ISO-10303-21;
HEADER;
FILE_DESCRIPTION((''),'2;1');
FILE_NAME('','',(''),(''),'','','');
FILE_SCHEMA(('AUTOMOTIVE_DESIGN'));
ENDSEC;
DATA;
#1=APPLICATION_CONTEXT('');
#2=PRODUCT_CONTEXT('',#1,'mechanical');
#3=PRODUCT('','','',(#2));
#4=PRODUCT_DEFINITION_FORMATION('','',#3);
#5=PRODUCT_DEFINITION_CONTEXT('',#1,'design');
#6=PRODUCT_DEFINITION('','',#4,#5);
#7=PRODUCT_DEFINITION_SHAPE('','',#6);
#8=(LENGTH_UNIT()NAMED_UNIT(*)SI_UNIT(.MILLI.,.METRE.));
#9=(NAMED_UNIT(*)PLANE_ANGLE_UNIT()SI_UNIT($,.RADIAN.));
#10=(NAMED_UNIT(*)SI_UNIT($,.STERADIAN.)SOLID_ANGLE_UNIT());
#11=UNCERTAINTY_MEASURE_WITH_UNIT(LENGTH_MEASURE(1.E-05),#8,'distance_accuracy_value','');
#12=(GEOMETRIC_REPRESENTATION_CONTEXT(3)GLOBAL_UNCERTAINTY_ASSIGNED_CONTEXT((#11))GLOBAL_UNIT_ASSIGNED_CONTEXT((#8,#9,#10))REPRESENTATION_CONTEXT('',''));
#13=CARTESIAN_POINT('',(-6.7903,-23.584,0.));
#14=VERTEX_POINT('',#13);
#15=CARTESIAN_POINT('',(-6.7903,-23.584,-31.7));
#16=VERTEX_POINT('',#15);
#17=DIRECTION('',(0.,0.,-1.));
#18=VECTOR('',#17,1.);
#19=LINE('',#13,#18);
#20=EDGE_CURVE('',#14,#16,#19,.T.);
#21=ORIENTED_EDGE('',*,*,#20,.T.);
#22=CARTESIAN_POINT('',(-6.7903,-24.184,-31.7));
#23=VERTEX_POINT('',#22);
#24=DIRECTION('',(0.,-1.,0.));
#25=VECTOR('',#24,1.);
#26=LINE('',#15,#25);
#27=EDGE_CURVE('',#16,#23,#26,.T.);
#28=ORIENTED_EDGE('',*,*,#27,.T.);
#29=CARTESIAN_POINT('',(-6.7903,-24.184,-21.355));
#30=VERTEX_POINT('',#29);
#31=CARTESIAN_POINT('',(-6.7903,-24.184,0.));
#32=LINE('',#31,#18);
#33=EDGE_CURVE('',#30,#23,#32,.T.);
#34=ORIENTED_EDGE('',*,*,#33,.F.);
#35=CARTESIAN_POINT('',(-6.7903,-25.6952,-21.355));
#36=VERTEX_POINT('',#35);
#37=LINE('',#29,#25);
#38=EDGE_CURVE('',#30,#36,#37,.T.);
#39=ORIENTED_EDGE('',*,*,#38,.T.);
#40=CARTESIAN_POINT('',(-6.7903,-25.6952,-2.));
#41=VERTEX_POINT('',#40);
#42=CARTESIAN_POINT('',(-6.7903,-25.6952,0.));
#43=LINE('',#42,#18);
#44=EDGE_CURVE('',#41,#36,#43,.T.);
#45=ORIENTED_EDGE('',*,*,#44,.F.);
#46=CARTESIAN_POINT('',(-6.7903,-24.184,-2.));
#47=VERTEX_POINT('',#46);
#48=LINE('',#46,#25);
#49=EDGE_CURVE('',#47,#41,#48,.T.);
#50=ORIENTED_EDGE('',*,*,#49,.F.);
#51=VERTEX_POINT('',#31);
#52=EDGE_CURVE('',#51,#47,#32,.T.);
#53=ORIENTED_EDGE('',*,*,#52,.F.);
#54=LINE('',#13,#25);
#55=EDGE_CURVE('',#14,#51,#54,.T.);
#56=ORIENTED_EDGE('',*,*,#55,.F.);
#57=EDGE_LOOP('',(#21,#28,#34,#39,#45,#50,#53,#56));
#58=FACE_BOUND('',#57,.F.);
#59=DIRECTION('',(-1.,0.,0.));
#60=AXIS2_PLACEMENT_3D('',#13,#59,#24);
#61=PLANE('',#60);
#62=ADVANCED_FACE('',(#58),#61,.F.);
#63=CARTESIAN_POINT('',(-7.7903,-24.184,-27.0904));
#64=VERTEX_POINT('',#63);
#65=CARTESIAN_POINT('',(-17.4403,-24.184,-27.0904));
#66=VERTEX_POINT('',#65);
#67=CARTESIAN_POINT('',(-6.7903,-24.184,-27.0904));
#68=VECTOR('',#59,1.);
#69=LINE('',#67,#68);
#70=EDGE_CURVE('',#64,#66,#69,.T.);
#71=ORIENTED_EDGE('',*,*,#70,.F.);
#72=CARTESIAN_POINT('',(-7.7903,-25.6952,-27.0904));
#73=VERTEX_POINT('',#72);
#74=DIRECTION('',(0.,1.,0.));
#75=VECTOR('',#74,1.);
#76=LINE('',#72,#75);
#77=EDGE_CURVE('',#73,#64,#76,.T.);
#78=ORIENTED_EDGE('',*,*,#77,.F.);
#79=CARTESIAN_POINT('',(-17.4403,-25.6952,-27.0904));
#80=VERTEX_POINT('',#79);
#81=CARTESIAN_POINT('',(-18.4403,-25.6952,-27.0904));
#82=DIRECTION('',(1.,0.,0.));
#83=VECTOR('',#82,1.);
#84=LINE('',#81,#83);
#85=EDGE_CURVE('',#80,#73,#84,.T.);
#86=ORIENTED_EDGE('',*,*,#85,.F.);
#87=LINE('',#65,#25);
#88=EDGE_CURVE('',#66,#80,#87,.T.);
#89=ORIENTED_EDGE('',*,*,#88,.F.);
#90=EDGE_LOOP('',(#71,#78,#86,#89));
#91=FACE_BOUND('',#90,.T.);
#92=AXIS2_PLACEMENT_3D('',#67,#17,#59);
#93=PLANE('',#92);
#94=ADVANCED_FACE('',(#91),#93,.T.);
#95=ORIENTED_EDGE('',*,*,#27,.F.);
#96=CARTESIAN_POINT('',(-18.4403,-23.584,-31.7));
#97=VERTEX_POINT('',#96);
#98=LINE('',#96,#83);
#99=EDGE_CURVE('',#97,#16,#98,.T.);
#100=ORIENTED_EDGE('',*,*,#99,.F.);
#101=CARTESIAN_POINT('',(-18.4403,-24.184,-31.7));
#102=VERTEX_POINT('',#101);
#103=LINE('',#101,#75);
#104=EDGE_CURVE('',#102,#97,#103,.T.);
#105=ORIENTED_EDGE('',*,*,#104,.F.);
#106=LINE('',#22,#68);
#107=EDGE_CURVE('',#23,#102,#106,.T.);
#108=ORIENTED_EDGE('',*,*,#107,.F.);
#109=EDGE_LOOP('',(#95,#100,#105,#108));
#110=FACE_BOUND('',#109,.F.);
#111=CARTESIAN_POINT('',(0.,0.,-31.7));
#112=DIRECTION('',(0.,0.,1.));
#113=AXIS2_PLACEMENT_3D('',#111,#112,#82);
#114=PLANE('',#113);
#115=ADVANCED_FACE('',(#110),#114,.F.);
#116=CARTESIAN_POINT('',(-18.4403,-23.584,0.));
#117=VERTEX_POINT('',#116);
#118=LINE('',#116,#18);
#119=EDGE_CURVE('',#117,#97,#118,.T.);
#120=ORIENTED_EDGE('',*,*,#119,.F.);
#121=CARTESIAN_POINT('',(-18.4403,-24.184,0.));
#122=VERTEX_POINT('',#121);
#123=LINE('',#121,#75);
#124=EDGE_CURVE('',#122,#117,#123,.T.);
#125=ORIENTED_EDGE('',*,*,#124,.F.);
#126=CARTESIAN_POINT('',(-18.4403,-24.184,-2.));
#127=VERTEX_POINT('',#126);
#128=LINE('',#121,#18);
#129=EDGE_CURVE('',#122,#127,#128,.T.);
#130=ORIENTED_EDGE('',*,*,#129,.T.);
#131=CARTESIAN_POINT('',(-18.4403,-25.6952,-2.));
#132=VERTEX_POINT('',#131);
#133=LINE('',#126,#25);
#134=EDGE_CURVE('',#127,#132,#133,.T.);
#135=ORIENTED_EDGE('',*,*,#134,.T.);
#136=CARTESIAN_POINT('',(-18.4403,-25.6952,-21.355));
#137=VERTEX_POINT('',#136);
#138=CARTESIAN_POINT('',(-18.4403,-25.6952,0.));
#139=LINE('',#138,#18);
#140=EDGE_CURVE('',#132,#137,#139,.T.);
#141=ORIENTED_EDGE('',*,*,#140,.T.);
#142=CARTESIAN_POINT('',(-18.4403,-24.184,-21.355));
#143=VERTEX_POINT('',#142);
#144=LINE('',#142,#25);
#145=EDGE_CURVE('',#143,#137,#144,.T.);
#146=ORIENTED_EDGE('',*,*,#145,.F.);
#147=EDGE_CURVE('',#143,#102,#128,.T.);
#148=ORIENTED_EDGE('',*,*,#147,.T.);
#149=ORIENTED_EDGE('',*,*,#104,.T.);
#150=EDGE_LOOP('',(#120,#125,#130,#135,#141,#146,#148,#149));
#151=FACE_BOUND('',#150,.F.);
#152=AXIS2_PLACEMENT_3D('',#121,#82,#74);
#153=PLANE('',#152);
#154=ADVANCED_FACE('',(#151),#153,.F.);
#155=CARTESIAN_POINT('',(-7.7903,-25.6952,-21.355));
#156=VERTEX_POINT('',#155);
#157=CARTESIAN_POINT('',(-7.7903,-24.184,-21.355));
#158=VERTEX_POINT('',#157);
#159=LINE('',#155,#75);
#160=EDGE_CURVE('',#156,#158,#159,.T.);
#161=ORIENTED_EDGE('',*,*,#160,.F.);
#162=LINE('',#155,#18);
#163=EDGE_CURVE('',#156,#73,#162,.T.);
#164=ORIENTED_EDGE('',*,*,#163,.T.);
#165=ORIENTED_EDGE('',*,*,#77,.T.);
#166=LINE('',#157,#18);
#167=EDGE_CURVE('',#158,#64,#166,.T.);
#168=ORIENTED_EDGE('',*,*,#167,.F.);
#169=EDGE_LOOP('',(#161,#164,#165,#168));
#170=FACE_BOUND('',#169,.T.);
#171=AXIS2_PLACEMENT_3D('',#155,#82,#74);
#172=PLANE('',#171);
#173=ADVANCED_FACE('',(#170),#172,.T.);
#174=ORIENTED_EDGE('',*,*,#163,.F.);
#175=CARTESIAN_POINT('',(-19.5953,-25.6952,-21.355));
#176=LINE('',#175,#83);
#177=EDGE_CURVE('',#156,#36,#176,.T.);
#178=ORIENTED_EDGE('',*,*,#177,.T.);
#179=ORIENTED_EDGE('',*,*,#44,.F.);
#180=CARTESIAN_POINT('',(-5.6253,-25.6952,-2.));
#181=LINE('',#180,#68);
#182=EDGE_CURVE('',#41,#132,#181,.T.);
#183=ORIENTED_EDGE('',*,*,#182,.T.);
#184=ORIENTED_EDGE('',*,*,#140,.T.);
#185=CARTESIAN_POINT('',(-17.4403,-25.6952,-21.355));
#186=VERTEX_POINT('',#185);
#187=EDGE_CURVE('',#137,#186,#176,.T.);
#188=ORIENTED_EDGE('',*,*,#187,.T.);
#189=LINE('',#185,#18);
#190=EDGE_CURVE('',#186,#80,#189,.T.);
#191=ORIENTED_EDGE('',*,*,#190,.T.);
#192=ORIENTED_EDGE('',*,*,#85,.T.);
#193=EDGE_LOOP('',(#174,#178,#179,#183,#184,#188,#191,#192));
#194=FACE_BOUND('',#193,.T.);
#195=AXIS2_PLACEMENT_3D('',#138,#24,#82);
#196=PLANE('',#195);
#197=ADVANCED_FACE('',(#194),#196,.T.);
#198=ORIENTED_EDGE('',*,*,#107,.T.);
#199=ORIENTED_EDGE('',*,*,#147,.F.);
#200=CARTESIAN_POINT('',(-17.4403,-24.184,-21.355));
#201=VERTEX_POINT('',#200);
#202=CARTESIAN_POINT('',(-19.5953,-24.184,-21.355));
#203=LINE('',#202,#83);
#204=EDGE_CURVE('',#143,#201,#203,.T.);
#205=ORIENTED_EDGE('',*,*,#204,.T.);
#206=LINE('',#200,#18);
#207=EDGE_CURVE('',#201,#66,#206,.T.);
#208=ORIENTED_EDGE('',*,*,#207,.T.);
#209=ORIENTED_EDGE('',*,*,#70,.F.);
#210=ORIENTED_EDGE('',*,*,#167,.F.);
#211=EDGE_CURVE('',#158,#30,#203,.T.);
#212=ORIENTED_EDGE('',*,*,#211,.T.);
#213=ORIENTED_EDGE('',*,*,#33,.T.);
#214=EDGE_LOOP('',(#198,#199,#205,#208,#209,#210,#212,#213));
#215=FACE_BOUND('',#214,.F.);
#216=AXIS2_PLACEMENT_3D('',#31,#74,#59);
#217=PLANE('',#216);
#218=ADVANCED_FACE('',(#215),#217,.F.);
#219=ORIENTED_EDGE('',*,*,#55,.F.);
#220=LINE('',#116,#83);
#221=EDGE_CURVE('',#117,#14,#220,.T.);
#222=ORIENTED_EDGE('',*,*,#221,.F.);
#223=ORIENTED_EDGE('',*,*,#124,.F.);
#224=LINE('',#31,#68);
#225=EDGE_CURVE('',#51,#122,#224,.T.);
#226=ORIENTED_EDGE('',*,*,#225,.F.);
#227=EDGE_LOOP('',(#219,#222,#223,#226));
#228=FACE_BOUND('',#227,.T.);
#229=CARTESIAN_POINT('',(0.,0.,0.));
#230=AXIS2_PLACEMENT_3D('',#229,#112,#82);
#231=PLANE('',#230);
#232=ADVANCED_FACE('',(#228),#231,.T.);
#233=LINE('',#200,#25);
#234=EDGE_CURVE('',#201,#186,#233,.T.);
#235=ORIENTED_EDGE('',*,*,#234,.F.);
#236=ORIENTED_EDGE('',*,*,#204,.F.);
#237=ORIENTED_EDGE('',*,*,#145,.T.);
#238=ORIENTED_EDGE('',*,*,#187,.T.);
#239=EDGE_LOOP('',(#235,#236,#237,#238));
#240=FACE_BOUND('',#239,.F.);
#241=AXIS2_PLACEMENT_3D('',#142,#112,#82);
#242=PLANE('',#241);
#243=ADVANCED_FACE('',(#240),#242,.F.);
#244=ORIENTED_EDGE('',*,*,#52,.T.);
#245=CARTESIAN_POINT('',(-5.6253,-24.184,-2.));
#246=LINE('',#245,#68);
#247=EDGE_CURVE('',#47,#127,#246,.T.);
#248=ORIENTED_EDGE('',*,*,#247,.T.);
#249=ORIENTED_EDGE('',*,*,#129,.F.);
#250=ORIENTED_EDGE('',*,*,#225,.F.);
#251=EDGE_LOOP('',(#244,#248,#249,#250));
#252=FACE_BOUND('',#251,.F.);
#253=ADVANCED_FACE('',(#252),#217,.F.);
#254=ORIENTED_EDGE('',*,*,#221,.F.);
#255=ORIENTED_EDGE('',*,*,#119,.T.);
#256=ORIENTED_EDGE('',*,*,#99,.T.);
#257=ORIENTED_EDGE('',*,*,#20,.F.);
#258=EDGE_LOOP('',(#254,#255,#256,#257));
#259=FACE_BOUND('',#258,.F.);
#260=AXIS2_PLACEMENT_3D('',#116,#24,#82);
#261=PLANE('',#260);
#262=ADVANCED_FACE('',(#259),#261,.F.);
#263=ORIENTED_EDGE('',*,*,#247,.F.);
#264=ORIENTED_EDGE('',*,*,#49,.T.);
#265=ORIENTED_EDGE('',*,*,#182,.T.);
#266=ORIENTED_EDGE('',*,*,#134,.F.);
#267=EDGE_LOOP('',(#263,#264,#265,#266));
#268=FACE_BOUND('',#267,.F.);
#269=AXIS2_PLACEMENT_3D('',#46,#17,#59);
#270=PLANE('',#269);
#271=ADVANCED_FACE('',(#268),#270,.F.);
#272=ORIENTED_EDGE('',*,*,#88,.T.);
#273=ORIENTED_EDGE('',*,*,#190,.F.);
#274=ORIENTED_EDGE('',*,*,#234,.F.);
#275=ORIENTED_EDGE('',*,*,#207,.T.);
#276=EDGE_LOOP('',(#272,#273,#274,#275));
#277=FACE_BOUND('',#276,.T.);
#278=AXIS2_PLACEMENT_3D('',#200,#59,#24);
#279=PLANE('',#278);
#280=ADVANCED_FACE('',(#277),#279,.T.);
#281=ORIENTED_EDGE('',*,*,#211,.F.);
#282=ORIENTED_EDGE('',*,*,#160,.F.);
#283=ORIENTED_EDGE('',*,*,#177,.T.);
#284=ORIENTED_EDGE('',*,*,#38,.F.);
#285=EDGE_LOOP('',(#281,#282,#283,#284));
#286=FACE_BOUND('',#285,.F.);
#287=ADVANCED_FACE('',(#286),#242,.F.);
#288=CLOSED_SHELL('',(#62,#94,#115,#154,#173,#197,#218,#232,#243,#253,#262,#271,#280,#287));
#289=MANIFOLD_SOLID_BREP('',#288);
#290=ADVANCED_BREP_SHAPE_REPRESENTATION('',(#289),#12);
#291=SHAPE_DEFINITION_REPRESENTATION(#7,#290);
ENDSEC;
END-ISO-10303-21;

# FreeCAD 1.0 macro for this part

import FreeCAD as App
import Part
import Sketcher
from FreeCAD import Vector
Q = App.Units.Quantity


def add_polygon(sketch, points):
    """Adds a closed chain of lines whose ends are joined by coincident constraints."""
    first, n = sketch.GeometryCount, len(points)
    for a, b in zip(points, points[1:] + points[:1]):
        sketch.addGeometry(Part.LineSegment(App.Vector(*a, 0), App.Vector(*b, 0)), False)
    for i in range(n):
        sketch.addConstraint(Sketcher.Constraint("Coincident", first + i, 2, first + (i + 1) % n, 1))

doc = App.newDocument("Part")
body = doc.addObject("PartDesign::Body", "Body")

# Sketch on XY plane
sketch1 = body.newObject("Sketcher::SketchObject", "Sketch")
sketch1.AttachmentSupport = (doc.getObject("XY_Plane"), [""])
sketch1.MapMode = "FlatFace"
add_polygon(sketch1, [(-6.8, -23.6), (-18.4, -23.6), (-18.4, -24.2), (-6.8, -24.2)])  # lines 0-3
sketch1.addConstraint([
    Sketcher.Constraint("Horizontal", 0),
    Sketcher.Constraint("Vertical", 1),
    Sketcher.Constraint("Horizontal", 2),
    Sketcher.Constraint("Vertical", 3),
    Sketcher.Constraint("DistanceY", 1, 2, 1, 1, Q("0.6 mm")),
    Sketcher.Constraint("DistanceX", 0, 2, 0, 1, Q("11.65 mm")),
    Sketcher.Constraint("DistanceY", 0, 2, -1, 1, Q("23.584 mm")),
    Sketcher.Constraint("DistanceX", 0, 2, -1, 1, Q("18.4403 mm")),
])
pad1 = body.newObject("PartDesign::Pad", "Pad")
pad1.Profile = sketch1
pad1.Length = 31.7
pad1.Reversed = True

# Sketch on XZ plane
sketch2 = body.newObject("Sketcher::SketchObject", "Sketch001")
sketch2.AttachmentSupport = (doc.getObject("XZ_Plane"), [""])
sketch2.MapMode = "FlatFace"
sketch2.AttachmentOffset = App.Placement(Vector(0, 0, 24.184), App.Rotation())
add_polygon(sketch2, [(-7, -21), (-7, -2), (-18, -2), (-18, -21)])  # lines 0-3
sketch2.addConstraint([
    Sketcher.Constraint("Vertical", 0),
    Sketcher.Constraint("Horizontal", 1),
    Sketcher.Constraint("Vertical", 2),
    Sketcher.Constraint("Horizontal", 3),
    Sketcher.Constraint("DistanceY", 0, 2, -1, 1, Q("2 mm")),
    Sketcher.Constraint("DistanceX", 1, 2, 1, 1, Q("11.65 mm")),
    Sketcher.Constraint("DistanceY", 0, 1, 0, 2, Q("19.355 mm")),
    Sketcher.Constraint("DistanceX", 0, 2, -1, 1, Q("6.7903 mm")),
])
pad2 = body.newObject("PartDesign::Pad", "Pad001")
pad2.Profile = sketch2
pad2.Length = 1.5112

# Sketch on XY plane
sketch3 = body.newObject("Sketcher::SketchObject", "Sketch002")
sketch3.AttachmentSupport = (doc.getObject("XY_Plane"), [""])
sketch3.MapMode = "FlatFace"
sketch3.AttachmentOffset = App.Placement(Vector(0, 0, -21.355), App.Rotation())
add_polygon(sketch3, [(-17.4, -24.2), (-7.8, -24.2), (-7.8, -25.7), (-17.4, -25.7)])  # lines 0-3
sketch3.addConstraint([
    Sketcher.Constraint("Horizontal", 0),
    Sketcher.Constraint("Vertical", 1),
    Sketcher.Constraint("Horizontal", 2),
    Sketcher.Constraint("Vertical", 3),
    Sketcher.Constraint("DistanceX", 0, 1, 0, 2, Q("9.65 mm")),
    Sketcher.Constraint("DistanceY", 1, 2, 1, 1, Q("1.5112 mm")),
    Sketcher.Constraint("DistanceY", 0, 2, -1, 1, Q("24.184 mm")),
    Sketcher.Constraint("DistanceX", 0, 2, -1, 1, Q("7.7903 mm")),
])
pad3 = body.newObject("PartDesign::Pad", "Pad002")
pad3.Profile = sketch3
pad3.Length = 5.7354
pad3.Reversed = True

doc.recompute()
